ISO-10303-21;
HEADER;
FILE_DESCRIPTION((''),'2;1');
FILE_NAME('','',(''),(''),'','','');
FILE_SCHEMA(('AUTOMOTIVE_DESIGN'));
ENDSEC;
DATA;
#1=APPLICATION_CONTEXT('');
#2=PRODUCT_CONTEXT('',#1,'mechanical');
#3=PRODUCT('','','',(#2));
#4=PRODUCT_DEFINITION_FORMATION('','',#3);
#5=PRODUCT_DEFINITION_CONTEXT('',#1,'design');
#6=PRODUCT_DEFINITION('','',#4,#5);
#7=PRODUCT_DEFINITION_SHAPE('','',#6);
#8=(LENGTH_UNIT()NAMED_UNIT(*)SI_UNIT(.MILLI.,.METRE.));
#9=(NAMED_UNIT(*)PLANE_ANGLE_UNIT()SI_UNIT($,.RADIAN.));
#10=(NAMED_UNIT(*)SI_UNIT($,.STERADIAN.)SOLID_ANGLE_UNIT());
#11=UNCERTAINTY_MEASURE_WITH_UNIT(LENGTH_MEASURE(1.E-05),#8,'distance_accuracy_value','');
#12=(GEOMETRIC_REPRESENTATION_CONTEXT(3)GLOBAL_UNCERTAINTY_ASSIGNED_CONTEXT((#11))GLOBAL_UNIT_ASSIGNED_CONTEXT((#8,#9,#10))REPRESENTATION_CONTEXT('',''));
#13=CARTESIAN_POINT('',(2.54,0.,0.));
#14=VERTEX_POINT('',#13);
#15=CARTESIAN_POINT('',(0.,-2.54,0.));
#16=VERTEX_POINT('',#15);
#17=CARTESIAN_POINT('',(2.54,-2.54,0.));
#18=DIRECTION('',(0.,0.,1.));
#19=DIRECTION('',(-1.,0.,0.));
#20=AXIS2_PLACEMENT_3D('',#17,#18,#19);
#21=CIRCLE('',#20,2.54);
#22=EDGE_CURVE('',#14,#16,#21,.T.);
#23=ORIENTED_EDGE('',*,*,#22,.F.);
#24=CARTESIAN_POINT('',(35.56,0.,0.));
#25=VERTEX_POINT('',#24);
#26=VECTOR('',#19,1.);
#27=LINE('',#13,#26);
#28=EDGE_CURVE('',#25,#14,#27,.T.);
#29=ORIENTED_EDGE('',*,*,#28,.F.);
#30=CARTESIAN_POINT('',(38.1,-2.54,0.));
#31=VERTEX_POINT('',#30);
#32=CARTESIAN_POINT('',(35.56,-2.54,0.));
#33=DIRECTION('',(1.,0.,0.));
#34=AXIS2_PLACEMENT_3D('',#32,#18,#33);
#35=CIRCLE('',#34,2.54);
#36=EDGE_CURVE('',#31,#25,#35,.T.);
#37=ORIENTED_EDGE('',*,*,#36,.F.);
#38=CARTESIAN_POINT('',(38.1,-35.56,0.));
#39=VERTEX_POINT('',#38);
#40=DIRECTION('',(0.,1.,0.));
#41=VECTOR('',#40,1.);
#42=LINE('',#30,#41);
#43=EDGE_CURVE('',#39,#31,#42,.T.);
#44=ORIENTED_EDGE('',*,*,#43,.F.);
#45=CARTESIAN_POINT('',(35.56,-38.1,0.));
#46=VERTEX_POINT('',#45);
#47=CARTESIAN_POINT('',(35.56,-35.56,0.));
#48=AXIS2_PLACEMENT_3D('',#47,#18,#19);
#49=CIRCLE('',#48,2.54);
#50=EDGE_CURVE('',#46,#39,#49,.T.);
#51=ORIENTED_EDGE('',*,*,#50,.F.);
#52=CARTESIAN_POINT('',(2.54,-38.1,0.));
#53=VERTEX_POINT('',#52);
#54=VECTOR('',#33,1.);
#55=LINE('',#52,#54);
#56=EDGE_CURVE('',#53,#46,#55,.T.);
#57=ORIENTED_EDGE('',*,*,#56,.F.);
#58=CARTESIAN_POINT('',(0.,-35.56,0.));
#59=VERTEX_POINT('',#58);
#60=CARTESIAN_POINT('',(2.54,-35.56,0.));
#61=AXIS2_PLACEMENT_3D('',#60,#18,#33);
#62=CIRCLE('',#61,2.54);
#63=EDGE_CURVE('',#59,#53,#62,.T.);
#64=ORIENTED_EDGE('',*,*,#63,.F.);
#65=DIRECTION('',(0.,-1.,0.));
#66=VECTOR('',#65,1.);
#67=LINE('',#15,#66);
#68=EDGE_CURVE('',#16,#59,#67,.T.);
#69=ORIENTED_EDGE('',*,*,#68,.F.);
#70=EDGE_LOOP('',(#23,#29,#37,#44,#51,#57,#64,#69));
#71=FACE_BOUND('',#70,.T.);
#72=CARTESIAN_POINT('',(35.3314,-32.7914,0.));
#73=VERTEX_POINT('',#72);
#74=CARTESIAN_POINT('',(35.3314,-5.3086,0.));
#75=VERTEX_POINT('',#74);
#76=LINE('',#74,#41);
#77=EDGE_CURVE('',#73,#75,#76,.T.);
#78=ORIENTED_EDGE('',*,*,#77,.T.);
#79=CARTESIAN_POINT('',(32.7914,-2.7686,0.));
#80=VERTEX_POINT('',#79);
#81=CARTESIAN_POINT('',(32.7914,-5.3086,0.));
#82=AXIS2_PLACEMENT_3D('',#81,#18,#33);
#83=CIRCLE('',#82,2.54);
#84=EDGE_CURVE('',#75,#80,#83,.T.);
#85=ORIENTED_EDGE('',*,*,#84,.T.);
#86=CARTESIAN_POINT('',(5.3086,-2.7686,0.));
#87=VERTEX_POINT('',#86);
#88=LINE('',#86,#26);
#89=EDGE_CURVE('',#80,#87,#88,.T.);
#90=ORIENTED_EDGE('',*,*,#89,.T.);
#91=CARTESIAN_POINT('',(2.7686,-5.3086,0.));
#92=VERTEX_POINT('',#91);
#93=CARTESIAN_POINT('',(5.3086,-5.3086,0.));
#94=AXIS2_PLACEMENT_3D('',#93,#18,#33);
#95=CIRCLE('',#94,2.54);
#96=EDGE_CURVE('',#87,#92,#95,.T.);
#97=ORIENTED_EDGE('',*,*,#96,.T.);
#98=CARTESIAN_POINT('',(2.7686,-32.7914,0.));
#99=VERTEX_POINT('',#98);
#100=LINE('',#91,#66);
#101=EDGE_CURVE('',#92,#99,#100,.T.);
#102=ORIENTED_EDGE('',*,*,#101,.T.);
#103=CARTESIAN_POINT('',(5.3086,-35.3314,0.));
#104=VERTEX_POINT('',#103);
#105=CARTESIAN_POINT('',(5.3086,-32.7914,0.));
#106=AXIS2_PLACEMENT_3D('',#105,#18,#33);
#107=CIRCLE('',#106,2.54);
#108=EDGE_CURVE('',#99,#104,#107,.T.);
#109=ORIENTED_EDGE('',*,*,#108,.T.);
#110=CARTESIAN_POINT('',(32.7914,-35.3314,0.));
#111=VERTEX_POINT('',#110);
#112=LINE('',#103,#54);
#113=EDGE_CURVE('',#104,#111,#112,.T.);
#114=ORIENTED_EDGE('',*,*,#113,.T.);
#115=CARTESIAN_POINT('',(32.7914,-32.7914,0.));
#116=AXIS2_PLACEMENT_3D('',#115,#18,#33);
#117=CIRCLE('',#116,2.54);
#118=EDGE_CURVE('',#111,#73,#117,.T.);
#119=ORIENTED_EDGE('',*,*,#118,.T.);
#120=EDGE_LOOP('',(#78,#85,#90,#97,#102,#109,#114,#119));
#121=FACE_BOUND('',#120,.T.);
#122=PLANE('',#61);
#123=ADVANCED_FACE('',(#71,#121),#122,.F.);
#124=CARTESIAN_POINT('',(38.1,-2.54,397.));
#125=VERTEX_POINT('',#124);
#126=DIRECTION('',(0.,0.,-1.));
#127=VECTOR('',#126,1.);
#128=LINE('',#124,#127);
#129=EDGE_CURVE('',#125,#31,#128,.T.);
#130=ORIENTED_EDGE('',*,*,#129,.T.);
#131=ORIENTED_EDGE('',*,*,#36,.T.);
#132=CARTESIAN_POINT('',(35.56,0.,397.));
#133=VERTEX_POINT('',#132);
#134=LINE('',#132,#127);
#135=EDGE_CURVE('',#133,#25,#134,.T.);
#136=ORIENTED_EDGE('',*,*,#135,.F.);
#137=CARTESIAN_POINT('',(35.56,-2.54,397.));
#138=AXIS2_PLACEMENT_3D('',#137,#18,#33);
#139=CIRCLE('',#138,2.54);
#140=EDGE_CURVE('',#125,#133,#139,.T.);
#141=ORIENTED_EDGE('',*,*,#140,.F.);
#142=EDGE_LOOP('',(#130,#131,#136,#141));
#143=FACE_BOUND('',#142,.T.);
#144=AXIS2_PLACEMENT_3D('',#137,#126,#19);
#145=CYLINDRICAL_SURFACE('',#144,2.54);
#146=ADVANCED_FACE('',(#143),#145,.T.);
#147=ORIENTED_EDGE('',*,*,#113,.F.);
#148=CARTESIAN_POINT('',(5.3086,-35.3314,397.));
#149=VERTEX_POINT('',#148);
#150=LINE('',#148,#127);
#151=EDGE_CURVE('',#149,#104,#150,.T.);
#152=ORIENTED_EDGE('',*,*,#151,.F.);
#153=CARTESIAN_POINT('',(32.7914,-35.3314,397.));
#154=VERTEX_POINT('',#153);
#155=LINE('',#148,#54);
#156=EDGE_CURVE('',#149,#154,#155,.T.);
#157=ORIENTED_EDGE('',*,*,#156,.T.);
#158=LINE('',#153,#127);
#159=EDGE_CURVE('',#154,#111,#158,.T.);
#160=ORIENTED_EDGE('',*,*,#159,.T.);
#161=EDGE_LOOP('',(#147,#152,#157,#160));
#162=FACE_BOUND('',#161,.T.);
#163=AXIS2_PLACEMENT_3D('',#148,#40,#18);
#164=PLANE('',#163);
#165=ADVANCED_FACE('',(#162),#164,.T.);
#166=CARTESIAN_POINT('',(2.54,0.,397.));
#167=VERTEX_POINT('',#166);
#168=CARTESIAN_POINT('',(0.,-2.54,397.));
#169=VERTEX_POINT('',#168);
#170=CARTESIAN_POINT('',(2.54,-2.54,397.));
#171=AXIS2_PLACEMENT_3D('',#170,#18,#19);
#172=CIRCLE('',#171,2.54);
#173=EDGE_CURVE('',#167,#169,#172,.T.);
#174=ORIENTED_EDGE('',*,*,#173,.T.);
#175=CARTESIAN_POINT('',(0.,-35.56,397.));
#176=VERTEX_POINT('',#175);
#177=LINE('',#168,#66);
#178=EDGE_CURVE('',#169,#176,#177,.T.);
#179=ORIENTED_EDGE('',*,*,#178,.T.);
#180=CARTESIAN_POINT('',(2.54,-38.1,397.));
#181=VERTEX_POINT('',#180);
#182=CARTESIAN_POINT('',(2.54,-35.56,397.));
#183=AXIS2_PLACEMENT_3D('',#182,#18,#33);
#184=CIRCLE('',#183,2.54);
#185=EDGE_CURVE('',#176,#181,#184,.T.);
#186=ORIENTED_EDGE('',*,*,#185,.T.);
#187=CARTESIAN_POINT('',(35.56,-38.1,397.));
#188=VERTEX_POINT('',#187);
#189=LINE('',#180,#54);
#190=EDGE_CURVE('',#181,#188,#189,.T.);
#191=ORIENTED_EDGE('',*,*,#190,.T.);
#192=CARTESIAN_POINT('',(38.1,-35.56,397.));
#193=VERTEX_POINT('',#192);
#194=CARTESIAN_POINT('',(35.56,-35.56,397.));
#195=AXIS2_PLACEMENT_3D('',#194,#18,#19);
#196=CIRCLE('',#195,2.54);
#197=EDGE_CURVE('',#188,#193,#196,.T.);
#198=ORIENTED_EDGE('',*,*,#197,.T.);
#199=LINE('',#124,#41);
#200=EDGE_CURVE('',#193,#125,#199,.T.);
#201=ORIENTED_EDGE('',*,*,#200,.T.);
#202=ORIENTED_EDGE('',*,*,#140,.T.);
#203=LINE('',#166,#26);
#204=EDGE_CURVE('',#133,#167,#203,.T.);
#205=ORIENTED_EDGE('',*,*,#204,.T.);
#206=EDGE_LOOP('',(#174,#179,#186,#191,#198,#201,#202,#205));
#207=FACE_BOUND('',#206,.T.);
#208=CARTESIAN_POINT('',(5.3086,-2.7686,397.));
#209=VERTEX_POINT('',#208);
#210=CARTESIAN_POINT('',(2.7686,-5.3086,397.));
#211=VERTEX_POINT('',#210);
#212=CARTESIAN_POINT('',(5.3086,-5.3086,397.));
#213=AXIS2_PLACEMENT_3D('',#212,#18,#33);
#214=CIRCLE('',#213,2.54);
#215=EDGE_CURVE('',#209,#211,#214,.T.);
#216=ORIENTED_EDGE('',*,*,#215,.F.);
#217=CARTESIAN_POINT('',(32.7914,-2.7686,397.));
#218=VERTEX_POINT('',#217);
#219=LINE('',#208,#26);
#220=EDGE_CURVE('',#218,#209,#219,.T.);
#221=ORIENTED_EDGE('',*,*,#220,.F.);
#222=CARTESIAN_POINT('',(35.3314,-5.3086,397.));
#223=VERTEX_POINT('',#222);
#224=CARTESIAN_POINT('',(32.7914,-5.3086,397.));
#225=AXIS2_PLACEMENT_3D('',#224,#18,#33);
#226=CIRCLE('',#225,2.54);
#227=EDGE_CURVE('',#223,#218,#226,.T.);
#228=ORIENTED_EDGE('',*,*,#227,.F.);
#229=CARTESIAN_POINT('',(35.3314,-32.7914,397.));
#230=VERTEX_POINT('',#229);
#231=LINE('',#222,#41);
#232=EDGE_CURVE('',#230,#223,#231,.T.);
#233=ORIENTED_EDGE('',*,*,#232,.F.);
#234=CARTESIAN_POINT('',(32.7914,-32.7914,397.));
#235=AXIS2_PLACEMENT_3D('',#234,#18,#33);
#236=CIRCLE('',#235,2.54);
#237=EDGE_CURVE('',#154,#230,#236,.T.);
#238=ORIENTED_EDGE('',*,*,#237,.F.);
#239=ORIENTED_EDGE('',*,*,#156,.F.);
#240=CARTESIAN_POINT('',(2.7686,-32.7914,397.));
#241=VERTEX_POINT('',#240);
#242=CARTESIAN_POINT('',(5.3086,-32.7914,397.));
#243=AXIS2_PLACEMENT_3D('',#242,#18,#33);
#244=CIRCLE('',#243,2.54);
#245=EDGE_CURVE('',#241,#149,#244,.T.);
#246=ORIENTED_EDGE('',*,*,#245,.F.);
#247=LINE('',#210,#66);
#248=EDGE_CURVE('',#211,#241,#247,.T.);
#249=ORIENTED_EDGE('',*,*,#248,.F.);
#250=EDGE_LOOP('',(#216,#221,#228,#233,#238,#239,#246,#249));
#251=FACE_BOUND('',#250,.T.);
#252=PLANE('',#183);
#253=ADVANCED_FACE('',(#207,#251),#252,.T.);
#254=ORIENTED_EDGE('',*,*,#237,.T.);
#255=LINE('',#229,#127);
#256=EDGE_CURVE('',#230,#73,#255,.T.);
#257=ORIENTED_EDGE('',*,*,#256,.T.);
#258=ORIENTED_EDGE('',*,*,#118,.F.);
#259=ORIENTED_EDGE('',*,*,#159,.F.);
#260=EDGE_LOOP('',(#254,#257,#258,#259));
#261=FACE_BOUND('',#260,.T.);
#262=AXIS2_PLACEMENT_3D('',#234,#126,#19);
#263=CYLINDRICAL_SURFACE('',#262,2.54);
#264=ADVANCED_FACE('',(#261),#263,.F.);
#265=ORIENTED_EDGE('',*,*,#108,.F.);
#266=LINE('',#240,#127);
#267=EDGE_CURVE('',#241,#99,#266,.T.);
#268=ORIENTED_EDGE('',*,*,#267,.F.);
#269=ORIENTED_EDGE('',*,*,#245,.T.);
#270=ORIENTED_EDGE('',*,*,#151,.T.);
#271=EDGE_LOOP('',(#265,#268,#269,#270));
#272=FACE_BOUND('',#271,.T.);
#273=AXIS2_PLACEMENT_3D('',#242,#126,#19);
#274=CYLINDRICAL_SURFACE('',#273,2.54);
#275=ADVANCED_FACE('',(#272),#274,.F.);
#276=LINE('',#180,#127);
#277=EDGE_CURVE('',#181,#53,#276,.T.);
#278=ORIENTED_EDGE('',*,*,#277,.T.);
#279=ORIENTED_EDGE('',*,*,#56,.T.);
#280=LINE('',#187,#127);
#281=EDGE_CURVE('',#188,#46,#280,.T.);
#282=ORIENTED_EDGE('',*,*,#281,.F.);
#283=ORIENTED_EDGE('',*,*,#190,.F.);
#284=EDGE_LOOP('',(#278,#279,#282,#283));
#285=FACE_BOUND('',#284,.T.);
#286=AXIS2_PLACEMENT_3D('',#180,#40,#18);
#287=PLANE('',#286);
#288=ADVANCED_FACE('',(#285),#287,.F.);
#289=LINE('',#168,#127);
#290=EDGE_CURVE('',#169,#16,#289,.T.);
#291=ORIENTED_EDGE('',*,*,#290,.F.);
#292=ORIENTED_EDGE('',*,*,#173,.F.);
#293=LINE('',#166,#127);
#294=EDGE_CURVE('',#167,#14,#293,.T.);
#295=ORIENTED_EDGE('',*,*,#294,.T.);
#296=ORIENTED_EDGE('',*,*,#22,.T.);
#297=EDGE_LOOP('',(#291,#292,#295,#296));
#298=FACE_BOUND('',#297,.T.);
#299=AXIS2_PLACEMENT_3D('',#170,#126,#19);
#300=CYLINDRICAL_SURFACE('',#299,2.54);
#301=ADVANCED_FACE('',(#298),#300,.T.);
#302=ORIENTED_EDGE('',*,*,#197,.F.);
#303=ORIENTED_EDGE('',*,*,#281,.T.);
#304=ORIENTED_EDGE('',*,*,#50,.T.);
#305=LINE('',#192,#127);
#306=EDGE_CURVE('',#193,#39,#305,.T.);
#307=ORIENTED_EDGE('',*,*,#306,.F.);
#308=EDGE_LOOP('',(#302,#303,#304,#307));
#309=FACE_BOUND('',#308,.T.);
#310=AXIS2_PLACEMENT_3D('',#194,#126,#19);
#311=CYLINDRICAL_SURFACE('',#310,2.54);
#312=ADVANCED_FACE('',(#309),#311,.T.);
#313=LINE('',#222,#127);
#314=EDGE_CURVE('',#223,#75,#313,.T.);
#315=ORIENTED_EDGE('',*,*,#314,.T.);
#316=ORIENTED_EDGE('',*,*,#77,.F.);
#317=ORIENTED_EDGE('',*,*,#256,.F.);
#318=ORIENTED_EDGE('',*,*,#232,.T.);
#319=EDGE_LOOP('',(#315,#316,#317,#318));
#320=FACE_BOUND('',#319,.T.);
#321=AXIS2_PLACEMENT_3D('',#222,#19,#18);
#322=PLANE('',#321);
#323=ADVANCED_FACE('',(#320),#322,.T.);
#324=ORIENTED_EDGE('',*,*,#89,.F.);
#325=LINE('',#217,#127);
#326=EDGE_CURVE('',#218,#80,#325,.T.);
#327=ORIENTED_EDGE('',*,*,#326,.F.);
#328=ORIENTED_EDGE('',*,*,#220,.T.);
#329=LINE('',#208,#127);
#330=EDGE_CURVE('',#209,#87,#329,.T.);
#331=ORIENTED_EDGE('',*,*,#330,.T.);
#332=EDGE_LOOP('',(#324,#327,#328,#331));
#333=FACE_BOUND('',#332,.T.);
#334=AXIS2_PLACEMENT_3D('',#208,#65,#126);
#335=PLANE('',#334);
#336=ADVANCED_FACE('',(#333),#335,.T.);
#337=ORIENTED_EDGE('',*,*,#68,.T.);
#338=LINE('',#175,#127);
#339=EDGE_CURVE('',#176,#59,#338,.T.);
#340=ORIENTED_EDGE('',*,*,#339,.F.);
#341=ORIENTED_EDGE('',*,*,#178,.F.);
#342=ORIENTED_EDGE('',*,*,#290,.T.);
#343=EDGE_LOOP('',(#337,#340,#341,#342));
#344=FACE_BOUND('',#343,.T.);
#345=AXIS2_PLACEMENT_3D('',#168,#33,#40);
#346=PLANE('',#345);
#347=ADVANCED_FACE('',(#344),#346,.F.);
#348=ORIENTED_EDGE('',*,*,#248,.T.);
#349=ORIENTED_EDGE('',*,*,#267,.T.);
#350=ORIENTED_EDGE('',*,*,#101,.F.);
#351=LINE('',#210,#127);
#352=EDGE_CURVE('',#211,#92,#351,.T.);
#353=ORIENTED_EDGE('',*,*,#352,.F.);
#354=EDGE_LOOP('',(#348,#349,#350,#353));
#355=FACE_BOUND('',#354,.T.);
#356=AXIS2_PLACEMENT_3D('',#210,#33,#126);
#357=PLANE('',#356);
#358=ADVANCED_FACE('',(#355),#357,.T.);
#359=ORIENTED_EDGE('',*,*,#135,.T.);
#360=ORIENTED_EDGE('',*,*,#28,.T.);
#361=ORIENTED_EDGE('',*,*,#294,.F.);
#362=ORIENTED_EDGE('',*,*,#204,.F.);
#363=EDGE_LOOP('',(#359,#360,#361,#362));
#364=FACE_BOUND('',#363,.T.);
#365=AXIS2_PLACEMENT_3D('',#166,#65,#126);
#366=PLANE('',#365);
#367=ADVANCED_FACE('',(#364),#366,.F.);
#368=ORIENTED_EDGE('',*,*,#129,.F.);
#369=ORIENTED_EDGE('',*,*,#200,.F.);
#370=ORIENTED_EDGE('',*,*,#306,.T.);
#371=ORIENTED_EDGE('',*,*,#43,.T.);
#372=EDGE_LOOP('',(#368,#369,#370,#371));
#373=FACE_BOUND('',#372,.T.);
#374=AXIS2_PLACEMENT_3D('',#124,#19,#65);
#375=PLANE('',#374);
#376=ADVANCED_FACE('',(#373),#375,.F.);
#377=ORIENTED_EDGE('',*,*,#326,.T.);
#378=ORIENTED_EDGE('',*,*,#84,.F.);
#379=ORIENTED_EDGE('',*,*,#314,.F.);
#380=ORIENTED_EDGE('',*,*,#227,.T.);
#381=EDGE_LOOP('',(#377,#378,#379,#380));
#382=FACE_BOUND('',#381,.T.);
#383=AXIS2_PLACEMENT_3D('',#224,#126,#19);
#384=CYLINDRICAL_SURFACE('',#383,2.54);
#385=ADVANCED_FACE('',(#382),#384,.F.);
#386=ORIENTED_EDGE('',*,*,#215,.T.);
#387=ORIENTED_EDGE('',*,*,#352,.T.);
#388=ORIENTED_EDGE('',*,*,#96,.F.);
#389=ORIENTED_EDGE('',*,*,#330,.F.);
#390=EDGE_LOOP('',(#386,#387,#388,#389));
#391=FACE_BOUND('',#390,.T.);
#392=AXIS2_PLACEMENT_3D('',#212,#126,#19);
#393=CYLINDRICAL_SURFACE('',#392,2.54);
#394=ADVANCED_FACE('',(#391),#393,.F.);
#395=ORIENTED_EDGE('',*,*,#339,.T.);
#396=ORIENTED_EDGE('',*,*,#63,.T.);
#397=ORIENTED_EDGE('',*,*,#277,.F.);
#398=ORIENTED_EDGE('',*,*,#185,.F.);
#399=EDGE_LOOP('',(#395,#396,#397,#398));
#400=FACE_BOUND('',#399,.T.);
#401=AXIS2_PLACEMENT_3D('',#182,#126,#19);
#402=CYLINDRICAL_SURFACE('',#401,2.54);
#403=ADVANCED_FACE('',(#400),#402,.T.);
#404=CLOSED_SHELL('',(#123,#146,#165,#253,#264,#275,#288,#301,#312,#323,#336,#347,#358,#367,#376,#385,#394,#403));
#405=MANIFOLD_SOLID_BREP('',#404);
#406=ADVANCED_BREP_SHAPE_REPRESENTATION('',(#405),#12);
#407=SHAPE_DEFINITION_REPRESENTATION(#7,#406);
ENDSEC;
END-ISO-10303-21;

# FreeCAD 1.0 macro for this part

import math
import FreeCAD as App
import Part
import Sketcher
from FreeCAD import Vector
Q = App.Units.Quantity

doc = App.newDocument("Part")
body = doc.addObject("PartDesign::Body", "Body")

# Sketch on XY plane
sketch1 = doc.addObject("Sketcher::SketchObject", "Sketch")
body.addObject(sketch1)
sketch1.AttachmentSupport = (doc.XY_Plane, [""])
sketch1.MapMode = "FlatFace"
sketch1.addGeometry(Part.LineSegment(Vector(35.56, 0, 0), Vector(2.54, 0, 0)), False)
sketch1.addGeometry(Part.ArcOfCircle(Part.Circle(Vector(2.54, -2.54, 0), Vector(0, 0, 1), 2.54), math.radians(90), math.radians(180)), False)
sketch1.addGeometry(Part.LineSegment(Vector(0, -2.54, 0), Vector(0, -35.56, 0)), False)
sketch1.addGeometry(Part.ArcOfCircle(Part.Circle(Vector(2.54, -35.56, 0), Vector(0, 0, 1), 2.54), math.radians(-180), math.radians(-90)), False)
sketch1.addGeometry(Part.LineSegment(Vector(2.54, -38.1, 0), Vector(35.56, -38.1, 0)), False)
sketch1.addGeometry(Part.ArcOfCircle(Part.Circle(Vector(35.56, -35.56, 0), Vector(0, 0, 1), 2.54), math.radians(-90), math.radians(0)), False)
sketch1.addGeometry(Part.LineSegment(Vector(38.1, -35.56, 0), Vector(38.1, -2.54, 0)), False)
sketch1.addGeometry(Part.ArcOfCircle(Part.Circle(Vector(35.56, -2.54, 0), Vector(0, 0, 1), 2.54), math.radians(0), math.radians(90)), False)
sketch1.addGeometry(Part.LineSegment(Vector(5.3086, -2.7686, 0), Vector(32.7914, -2.7686, 0)), False)
sketch1.addGeometry(Part.ArcOfCircle(Part.Circle(Vector(32.7914, -5.3086, 0), Vector(0, 0, 1), 2.54), math.radians(0), math.radians(90)), False)
sketch1.addGeometry(Part.LineSegment(Vector(35.3314, -5.3086, 0), Vector(35.3314, -32.7914, 0)), False)
sketch1.addGeometry(Part.ArcOfCircle(Part.Circle(Vector(32.7914, -32.7914, 0), Vector(0, 0, 1), 2.54), math.radians(-90), math.radians(0)), False)
sketch1.addGeometry(Part.LineSegment(Vector(32.7914, -35.3314, 0), Vector(5.3086, -35.3314, 0)), False)
sketch1.addGeometry(Part.ArcOfCircle(Part.Circle(Vector(5.3086, -32.7914, 0), Vector(0, 0, 1), 2.54), math.radians(-180), math.radians(-90)), False)
sketch1.addGeometry(Part.LineSegment(Vector(2.7686, -32.7914, 0), Vector(2.7686, -5.3086, 0)), False)
sketch1.addGeometry(Part.ArcOfCircle(Part.Circle(Vector(5.3086, -5.3086, 0), Vector(0, 0, 1), 2.54), math.radians(90), math.radians(180)), False)
sketch1.addConstraint(Sketcher.Constraint("Tangent", 0, 2, 1, 1))
sketch1.addConstraint(Sketcher.Constraint("Tangent", 1, 2, 2, 1))
sketch1.addConstraint(Sketcher.Constraint("Tangent", 2, 2, 3, 1))
sketch1.addConstraint(Sketcher.Constraint("Tangent", 3, 2, 4, 1))
sketch1.addConstraint(Sketcher.Constraint("Tangent", 4, 2, 5, 1))
sketch1.addConstraint(Sketcher.Constraint("Tangent", 5, 2, 6, 1))
sketch1.addConstraint(Sketcher.Constraint("Tangent", 6, 2, 7, 1))
sketch1.addConstraint(Sketcher.Constraint("Tangent", 7, 2, 0, 1))
sketch1.addConstraint(Sketcher.Constraint("Tangent", 8, 2, 9, 2))
sketch1.addConstraint(Sketcher.Constraint("Tangent", 9, 1, 10, 1))
sketch1.addConstraint(Sketcher.Constraint("Tangent", 10, 2, 11, 2))
sketch1.addConstraint(Sketcher.Constraint("Tangent", 11, 1, 12, 1))
sketch1.addConstraint(Sketcher.Constraint("Tangent", 12, 2, 13, 2))
sketch1.addConstraint(Sketcher.Constraint("Tangent", 13, 1, 14, 1))
sketch1.addConstraint(Sketcher.Constraint("Tangent", 14, 2, 15, 2))
sketch1.addConstraint(Sketcher.Constraint("Tangent", 15, 1, 8, 1))
sketch1.addConstraint(Sketcher.Constraint("Horizontal", 0))
sketch1.addConstraint(Sketcher.Constraint("Vertical", 2))
sketch1.addConstraint(Sketcher.Constraint("Horizontal", 4))
sketch1.addConstraint(Sketcher.Constraint("Vertical", 6))
sketch1.addConstraint(Sketcher.Constraint("Horizontal", 8))
sketch1.addConstraint(Sketcher.Constraint("Vertical", 10))
sketch1.addConstraint(Sketcher.Constraint("Horizontal", 12))
sketch1.addConstraint(Sketcher.Constraint("Vertical", 14))
sketch1.addConstraint(Sketcher.Constraint("Equal", 1, 3))
sketch1.addConstraint(Sketcher.Constraint("Equal", 3, 5))
sketch1.addConstraint(Sketcher.Constraint("Equal", 5, 7))
sketch1.addConstraint(Sketcher.Constraint("Equal", 7, 9))
sketch1.addConstraint(Sketcher.Constraint("Equal", 9, 11))
sketch1.addConstraint(Sketcher.Constraint("Equal", 11, 13))
sketch1.addConstraint(Sketcher.Constraint("Equal", 13, 15))
sketch1.addConstraint(Sketcher.Constraint("PointOnObject", 0, 2, -1))
sketch1.addConstraint(Sketcher.Constraint("PointOnObject", 1, 2, -2))
sketch1.addConstraint(Sketcher.Constraint("Equal", 4, 2))
sketch1.addConstraint(Sketcher.Constraint("Equal", 12, 10))
sketch1.addConstraint(Sketcher.Constraint("Radius", 1, Q("0.1 in")))
sketch1.addConstraint(Sketcher.Constraint("DistanceX", 0, 2, 0, 1, Q("1.3 in")))
sketch1.addConstraint(Sketcher.Constraint("DistanceX", 8, 1, 8, 2, Q("1.082 in")))
sketch1.addConstraint(Sketcher.Constraint("DistanceX", -1, 1, 9, 3, Q("1.291 in")))
sketch1.addConstraint(Sketcher.Constraint("DistanceY", 9, 3, -1, 1, Q("0.209 in")))
pad1 = doc.addObject("PartDesign::Pad", "Pad")
body.addObject(pad1)
pad1.Profile = sketch1
pad1.Length = 397

doc.recompute()
